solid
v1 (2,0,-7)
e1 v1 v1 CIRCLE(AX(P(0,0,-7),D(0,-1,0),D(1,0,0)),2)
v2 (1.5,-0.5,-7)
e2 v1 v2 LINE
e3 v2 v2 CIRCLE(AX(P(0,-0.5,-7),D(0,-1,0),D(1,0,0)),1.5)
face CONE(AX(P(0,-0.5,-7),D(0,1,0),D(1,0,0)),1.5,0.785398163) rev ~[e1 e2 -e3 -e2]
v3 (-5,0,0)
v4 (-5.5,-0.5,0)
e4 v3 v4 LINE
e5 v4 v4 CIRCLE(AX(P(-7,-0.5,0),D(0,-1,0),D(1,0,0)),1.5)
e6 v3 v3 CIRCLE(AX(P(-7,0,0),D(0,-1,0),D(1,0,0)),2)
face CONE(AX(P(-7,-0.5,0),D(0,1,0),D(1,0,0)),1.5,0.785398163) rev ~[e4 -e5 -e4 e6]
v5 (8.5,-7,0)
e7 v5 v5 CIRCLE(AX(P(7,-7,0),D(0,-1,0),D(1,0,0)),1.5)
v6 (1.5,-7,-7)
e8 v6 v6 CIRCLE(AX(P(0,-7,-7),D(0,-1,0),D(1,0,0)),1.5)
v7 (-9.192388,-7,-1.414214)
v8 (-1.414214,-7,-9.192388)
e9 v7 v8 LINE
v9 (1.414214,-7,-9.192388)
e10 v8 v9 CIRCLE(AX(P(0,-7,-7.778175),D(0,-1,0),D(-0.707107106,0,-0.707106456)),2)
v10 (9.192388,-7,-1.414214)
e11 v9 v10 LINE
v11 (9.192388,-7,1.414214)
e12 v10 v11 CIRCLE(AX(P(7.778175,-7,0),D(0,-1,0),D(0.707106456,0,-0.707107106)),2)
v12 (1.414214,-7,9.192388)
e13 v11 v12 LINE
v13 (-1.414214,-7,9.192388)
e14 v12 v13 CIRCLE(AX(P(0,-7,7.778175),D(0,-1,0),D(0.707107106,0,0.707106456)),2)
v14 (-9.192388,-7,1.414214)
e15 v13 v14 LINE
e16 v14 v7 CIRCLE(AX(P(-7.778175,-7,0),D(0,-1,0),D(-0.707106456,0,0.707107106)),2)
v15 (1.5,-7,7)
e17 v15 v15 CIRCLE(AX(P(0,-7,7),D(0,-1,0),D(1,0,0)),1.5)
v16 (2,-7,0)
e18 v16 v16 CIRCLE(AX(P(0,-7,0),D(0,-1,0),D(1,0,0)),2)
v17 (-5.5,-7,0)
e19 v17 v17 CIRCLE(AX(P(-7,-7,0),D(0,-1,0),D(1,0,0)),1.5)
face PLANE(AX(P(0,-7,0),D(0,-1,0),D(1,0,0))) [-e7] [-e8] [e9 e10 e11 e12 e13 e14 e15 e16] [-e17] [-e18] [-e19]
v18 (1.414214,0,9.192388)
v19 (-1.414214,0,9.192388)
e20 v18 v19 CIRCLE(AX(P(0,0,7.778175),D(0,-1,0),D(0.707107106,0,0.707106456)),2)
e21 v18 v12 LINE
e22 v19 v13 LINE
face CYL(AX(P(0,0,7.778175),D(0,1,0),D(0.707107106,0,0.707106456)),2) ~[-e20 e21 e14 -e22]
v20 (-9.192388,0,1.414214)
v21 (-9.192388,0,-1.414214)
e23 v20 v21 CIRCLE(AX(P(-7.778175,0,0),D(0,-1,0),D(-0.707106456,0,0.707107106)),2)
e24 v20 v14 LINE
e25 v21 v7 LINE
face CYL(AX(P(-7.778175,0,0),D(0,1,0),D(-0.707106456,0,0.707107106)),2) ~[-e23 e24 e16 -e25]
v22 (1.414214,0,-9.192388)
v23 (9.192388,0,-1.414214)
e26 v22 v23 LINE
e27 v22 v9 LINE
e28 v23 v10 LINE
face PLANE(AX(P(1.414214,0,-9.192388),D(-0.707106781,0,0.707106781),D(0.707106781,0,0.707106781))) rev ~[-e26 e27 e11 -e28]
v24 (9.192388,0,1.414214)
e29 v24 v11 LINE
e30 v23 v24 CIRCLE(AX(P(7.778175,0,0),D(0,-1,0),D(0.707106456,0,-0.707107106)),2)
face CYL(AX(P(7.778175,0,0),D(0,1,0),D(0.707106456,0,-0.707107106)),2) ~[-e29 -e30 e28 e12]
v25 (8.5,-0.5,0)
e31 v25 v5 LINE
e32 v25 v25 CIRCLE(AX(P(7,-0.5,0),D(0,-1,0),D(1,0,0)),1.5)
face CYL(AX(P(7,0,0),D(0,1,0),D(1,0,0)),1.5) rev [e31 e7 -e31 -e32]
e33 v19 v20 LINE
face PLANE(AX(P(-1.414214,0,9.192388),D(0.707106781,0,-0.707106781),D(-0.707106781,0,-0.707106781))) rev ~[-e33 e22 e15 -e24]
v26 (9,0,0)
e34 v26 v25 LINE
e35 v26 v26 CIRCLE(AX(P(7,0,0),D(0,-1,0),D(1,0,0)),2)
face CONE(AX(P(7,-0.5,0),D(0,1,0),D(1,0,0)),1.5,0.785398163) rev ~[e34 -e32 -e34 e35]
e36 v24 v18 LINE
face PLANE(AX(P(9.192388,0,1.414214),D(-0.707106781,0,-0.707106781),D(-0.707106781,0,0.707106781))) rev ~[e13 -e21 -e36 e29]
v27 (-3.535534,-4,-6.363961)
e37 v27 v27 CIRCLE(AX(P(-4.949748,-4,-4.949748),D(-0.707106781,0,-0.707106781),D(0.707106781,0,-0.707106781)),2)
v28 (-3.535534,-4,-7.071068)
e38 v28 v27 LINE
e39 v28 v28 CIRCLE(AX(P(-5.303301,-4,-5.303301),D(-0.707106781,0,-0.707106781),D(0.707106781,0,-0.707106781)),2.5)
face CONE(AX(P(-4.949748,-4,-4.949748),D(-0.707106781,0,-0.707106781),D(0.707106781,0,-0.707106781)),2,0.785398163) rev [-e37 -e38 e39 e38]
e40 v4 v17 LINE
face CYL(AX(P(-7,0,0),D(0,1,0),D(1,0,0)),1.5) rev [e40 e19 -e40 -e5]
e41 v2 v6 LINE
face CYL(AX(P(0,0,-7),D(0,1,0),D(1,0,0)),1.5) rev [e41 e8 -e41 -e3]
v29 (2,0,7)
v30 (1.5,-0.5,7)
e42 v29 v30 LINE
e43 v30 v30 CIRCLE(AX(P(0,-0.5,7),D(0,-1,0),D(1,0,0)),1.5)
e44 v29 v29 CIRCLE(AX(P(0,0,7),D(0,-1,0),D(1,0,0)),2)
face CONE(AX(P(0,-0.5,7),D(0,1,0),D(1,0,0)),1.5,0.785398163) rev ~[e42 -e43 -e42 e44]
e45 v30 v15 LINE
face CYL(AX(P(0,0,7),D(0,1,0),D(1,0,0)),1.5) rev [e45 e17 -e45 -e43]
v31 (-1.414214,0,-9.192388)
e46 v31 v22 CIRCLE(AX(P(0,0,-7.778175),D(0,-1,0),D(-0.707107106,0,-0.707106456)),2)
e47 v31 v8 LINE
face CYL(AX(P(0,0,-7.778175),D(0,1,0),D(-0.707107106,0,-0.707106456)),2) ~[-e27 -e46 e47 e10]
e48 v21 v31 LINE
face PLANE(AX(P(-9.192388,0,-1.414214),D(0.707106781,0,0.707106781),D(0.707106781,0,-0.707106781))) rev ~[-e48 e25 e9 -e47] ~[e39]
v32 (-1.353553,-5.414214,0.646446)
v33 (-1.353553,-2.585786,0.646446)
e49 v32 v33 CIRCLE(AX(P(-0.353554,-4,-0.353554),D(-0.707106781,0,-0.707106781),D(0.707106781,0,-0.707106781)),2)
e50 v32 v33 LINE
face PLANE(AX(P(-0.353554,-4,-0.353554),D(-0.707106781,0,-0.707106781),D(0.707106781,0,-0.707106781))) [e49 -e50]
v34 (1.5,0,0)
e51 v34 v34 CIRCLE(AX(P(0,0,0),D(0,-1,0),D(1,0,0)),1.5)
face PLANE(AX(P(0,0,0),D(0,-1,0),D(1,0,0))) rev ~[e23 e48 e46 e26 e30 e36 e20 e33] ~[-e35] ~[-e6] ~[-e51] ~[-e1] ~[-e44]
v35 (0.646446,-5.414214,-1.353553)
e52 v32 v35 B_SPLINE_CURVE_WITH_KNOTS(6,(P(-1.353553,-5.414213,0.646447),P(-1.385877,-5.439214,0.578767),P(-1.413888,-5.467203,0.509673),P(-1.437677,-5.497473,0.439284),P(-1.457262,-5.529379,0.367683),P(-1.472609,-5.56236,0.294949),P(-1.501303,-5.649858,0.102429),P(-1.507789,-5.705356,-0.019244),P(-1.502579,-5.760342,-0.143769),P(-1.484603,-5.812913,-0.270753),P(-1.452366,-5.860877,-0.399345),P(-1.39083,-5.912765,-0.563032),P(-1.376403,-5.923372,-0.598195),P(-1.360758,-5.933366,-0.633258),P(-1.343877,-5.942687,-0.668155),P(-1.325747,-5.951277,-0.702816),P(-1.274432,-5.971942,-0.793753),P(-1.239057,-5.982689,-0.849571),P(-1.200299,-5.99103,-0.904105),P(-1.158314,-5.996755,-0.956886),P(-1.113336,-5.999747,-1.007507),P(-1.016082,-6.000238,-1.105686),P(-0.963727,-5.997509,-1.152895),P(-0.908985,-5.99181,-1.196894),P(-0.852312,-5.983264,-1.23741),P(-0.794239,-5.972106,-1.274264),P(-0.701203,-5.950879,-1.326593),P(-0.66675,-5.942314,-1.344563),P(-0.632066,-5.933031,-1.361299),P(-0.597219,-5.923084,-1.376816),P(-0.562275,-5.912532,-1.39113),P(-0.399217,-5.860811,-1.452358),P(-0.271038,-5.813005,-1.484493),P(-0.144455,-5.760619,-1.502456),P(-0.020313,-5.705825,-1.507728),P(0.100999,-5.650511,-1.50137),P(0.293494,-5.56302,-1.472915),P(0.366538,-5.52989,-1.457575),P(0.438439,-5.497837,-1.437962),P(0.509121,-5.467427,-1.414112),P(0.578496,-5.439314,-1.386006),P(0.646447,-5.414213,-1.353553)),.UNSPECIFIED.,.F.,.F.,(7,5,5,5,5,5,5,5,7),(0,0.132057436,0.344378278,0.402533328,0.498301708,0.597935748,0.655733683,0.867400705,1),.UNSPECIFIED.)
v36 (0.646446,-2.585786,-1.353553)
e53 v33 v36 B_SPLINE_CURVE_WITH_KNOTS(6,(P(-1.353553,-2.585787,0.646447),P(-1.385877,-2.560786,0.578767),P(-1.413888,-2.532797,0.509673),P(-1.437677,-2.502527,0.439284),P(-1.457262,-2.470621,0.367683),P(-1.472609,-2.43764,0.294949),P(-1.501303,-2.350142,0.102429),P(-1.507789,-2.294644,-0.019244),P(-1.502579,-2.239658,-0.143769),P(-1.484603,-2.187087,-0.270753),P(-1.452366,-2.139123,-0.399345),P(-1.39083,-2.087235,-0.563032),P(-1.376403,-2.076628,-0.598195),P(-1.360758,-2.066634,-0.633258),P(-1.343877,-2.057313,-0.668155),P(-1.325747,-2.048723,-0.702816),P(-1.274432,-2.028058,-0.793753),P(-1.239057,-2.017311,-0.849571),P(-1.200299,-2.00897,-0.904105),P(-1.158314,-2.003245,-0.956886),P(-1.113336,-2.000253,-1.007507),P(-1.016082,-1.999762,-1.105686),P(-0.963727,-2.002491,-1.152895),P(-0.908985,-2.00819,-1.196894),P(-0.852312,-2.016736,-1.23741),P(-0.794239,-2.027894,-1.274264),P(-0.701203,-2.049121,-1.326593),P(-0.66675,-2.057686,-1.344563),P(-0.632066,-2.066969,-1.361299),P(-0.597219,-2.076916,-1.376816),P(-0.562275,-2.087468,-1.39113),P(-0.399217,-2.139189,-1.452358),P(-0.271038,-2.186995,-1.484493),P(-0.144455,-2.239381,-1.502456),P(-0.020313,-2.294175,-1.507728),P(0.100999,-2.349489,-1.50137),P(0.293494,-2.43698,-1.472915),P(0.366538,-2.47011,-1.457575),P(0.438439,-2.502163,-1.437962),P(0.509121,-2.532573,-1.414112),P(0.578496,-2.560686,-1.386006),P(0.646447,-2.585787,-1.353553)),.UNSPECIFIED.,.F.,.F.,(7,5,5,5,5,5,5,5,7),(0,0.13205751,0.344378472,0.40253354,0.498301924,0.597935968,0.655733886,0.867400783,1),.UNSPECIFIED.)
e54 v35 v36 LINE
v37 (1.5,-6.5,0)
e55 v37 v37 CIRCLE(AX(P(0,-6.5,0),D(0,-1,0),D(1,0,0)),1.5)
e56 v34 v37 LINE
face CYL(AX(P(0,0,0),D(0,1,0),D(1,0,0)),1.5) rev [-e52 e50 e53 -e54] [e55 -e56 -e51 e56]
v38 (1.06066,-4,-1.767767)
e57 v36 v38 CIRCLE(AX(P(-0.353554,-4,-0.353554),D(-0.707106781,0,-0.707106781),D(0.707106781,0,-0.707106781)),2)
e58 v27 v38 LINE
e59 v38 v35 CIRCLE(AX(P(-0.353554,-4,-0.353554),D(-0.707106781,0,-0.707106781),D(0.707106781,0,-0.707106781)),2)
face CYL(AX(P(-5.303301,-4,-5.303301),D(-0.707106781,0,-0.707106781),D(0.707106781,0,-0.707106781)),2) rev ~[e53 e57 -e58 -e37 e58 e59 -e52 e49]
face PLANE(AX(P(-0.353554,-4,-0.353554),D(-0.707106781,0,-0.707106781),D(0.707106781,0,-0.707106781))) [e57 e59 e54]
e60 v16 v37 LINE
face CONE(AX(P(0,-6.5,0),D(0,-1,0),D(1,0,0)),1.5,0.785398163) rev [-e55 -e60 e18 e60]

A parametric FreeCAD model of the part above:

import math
import FreeCAD as App
import Part
import Sketcher
from FreeCAD import Vector


def edges_at(feature, points):
    """Names of the edges that pass closest to the given points."""
    edges = feature.Shape.Edges
    near = lambda p: min(range(len(edges)), key=lambda i: edges[i].distToShape(Part.Vertex(*p))[0])
    return sorted({f"Edge{near(p) + 1}" for p in points})

doc = App.newDocument("Part")
body = doc.addObject("PartDesign::Body", "Body")

# Sketch on XZ plane
sketch1 = body.newObject("Sketcher::SketchObject", "Sketch")
sketch1.AttachmentSupport = (doc.getObject("XZ_Plane"), [""])
sketch1.MapMode = "FlatFace"
sketch1.addGeometry(Part.LineSegment(Vector(-9.192388, -1.414214, 0), Vector(-1.414214, -9.192388, 0)), False)
sketch1.addGeometry(Part.ArcOfCircle(Part.Circle(Vector(0, -7.778175, 0), Vector(0, 0, 1), 2), math.radians(-135.000026), math.radians(-44.999974)), False)
sketch1.addGeometry(Part.LineSegment(Vector(1.414214, -9.192388, 0), Vector(9.192388, -1.414214, 0)), False)
sketch1.addGeometry(Part.ArcOfCircle(Part.Circle(Vector(7.778175, 0, 0), Vector(0, 0, 1), 2), math.radians(-45.000026), math.radians(45.000026)), False)
sketch1.addGeometry(Part.LineSegment(Vector(9.192388, 1.414214, 0), Vector(1.414214, 9.192388, 0)), False)
sketch1.addGeometry(Part.ArcOfCircle(Part.Circle(Vector(0, 7.778175, 0), Vector(0, 0, 1), 2), math.radians(44.999974), math.radians(135.000026)), False)
sketch1.addGeometry(Part.LineSegment(Vector(-1.414214, 9.192388, 0), Vector(-9.192388, 1.414214, 0)), False)
sketch1.addGeometry(Part.ArcOfCircle(Part.Circle(Vector(-7.778175, 0, 0), Vector(0, 0, 1), 2), math.radians(134.999974), math.radians(225.000026)), False)
sketch1.addGeometry(Part.Circle(Vector(0, -7, 0), Vector(0, 0, 1), 1.5), False)
sketch1.addGeometry(Part.Circle(Vector(-7, 0, 0), Vector(0, 0, 1), 1.5), False)
sketch1.addGeometry(Part.Circle(Vector(0, 0, 0), Vector(0, 0, 1), 1.5), False)
sketch1.addGeometry(Part.Circle(Vector(7, 0, 0), Vector(0, 0, 1), 1.5), False)
sketch1.addGeometry(Part.Circle(Vector(0, 7, 0), Vector(0, 0, 1), 1.5), False)
sketch1.addConstraint(Sketcher.Constraint("Tangent", 0, 2, 1, 1))
sketch1.addConstraint(Sketcher.Constraint("Tangent", 1, 2, 2, 1))
sketch1.addConstraint(Sketcher.Constraint("Tangent", 2, 2, 3, 1))
sketch1.addConstraint(Sketcher.Constraint("Tangent", 3, 2, 4, 1))
sketch1.addConstraint(Sketcher.Constraint("Tangent", 4, 2, 5, 1))
sketch1.addConstraint(Sketcher.Constraint("Tangent", 5, 2, 6, 1))
sketch1.addConstraint(Sketcher.Constraint("Tangent", 6, 2, 7, 1))
sketch1.addConstraint(Sketcher.Constraint("Tangent", 7, 2, 0, 1))
sketch1.addConstraint(Sketcher.Constraint("Coincident", 10, 3, -1, 1))
sketch1.addConstraint(Sketcher.Constraint("Equal", 1, 3))
sketch1.addConstraint(Sketcher.Constraint("Equal", 3, 5))
sketch1.addConstraint(Sketcher.Constraint("Equal", 5, 7))
sketch1.addConstraint(Sketcher.Constraint("Equal", 8, 9))
sketch1.addConstraint(Sketcher.Constraint("Equal", 9, 10))
sketch1.addConstraint(Sketcher.Constraint("Equal", 10, 11))
sketch1.addConstraint(Sketcher.Constraint("Equal", 11, 12))
sketch1.addConstraint(Sketcher.Constraint("Symmetric", 1, 3, 5, 3, -1, 1))
sketch1.addConstraint(Sketcher.Constraint("Symmetric", 3, 3, 7, 3, -1, 1))
sketch1.addConstraint(Sketcher.Constraint("Symmetric", 9, 3, 11, 3, -1, 1))
sketch1.addConstraint(Sketcher.Constraint("Symmetric", 8, 3, 12, 3, -1, 1))
sketch1.addConstraint(Sketcher.Constraint("Symmetric", 0, 2, 1, 2, -2))
sketch1.addConstraint(Sketcher.Constraint("PointOnObject", 8, 3, -2))
sketch1.addConstraint(Sketcher.Constraint("PointOnObject", 9, 3, -1))
sketch1.addConstraint(Sketcher.Constraint("Perpendicular", 0, 2))
sketch1.addConstraint(Sketcher.Constraint("Diameter", 8, 3.0))
sketch1.addConstraint(Sketcher.Constraint("Radius", 1, 2.0))
sketch1.addConstraint(Sketcher.Constraint("Distance", 0, 10.999999))
sketch1.addConstraint(Sketcher.Constraint("DistanceY", 8, 3, -1, 1, 7.0))
sketch1.addConstraint(Sketcher.Constraint("DistanceX", 9, 3, -1, 1, 7.0))
pad1 = body.newObject("PartDesign::Pad", "Pad")
pad1.Profile = sketch1
pad1.Length = 7

# Sketch on an angled plane
sketch2 = body.newObject("Sketcher::SketchObject", "Sketch001")
sketch2.Placement = App.Placement(Vector(-5.303301, 0, -5.303301), App.Rotation(Vector(0.707106781, 0, -0.707106781), Vector(0, -0.999999999, 0), Vector(-0.707106781, 0, -0.707106781), "ZXY"))
sketch2.addGeometry(Part.Circle(Vector(0, 4, 0), Vector(0, 0, 1), 2), False)
sketch2.addConstraint(Sketcher.Constraint("PointOnObject", 0, 3, -2))
sketch2.addConstraint(Sketcher.Constraint("Diameter", 0, 4.0))
sketch2.addConstraint(Sketcher.Constraint("DistanceY", -1, 1, 0, 3, 4.0))
pocket1 = body.newObject("PartDesign::Pocket", "Pocket")
pocket1.Profile = sketch2
pocket1.Length = 7
doc.recompute()

chamfer = body.newObject("PartDesign::Chamfer", "Chamfer")
chamfer.Base = (pocket1, edges_at(pocket1, [
    (-1.5, 0, 7),
    (-8.5, 0, 0),
    (-1.5, 0, -7),
    (5.5, 0, 0),
    (-1.5, -7, 0),
    (-6.718, -4, -3.889),
]))
chamfer.Size = 0.5

doc.recompute()
